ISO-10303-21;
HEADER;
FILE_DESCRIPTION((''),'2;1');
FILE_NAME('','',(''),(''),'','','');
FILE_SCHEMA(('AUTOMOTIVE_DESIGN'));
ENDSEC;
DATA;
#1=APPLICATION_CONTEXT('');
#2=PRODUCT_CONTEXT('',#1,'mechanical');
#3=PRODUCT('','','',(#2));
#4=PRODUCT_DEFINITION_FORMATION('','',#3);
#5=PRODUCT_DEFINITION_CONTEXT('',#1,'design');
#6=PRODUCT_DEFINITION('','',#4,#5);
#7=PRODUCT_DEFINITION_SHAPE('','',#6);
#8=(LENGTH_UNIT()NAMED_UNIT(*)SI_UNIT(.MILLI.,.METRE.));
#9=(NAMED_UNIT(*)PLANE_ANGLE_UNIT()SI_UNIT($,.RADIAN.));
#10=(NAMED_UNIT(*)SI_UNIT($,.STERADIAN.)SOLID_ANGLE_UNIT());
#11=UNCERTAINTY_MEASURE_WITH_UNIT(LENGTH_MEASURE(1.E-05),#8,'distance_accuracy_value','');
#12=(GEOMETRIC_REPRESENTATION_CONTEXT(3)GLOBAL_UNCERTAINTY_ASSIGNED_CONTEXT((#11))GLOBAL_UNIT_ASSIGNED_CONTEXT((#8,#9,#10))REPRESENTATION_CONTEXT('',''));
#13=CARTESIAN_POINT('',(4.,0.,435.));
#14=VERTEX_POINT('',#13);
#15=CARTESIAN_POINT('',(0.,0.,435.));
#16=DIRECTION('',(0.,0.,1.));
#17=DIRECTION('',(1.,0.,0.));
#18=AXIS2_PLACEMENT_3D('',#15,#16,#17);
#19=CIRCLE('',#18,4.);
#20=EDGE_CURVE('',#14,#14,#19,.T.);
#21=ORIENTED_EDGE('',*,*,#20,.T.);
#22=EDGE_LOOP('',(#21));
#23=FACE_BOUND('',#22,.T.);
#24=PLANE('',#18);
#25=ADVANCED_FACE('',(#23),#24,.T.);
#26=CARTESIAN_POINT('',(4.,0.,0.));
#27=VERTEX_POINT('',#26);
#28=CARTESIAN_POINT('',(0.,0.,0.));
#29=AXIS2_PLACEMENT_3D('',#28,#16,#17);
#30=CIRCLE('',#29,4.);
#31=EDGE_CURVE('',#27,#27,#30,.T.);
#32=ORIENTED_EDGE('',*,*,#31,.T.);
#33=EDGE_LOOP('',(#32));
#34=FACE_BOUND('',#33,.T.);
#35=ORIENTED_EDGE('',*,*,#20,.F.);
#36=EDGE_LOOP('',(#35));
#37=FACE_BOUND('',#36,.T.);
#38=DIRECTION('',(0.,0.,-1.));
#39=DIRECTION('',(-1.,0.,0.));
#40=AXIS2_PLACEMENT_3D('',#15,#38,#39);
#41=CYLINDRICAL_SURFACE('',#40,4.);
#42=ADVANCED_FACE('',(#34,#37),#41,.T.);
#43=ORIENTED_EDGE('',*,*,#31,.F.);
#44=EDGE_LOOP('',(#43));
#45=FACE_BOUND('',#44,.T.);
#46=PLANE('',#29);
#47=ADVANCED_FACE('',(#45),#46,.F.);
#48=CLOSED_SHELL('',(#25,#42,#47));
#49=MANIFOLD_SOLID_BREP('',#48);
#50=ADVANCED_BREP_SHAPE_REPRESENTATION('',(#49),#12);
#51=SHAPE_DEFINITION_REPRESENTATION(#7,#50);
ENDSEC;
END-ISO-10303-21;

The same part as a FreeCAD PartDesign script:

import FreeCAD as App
import Part
import Sketcher

V = App.Vector
Q = App.Units.Quantity

doc = App.newDocument("Part")
body = doc.addObject("PartDesign::Body", "Body")

# Sketch on XY plane
sketch1 = body.newObject("Sketcher::SketchObject", "Sketch")
sketch1.AttachmentSupport = (doc.getObject("XY_Plane"), [""])
sketch1.MapMode = "FlatFace"
sketch1.addGeometry(Part.Circle(V(0, 0, 0), V(0, 0, 1), 4), False)
sketch1.addConstraint([
    Sketcher.Constraint("Coincident", 0, 3, -1, 1),
    Sketcher.Constraint("Diameter", 0, Q("8 mm")),
])
pad1 = body.newObject("PartDesign::Pad", "Pad")
pad1.Profile = sketch1
pad1.Length = 435

doc.recompute()
